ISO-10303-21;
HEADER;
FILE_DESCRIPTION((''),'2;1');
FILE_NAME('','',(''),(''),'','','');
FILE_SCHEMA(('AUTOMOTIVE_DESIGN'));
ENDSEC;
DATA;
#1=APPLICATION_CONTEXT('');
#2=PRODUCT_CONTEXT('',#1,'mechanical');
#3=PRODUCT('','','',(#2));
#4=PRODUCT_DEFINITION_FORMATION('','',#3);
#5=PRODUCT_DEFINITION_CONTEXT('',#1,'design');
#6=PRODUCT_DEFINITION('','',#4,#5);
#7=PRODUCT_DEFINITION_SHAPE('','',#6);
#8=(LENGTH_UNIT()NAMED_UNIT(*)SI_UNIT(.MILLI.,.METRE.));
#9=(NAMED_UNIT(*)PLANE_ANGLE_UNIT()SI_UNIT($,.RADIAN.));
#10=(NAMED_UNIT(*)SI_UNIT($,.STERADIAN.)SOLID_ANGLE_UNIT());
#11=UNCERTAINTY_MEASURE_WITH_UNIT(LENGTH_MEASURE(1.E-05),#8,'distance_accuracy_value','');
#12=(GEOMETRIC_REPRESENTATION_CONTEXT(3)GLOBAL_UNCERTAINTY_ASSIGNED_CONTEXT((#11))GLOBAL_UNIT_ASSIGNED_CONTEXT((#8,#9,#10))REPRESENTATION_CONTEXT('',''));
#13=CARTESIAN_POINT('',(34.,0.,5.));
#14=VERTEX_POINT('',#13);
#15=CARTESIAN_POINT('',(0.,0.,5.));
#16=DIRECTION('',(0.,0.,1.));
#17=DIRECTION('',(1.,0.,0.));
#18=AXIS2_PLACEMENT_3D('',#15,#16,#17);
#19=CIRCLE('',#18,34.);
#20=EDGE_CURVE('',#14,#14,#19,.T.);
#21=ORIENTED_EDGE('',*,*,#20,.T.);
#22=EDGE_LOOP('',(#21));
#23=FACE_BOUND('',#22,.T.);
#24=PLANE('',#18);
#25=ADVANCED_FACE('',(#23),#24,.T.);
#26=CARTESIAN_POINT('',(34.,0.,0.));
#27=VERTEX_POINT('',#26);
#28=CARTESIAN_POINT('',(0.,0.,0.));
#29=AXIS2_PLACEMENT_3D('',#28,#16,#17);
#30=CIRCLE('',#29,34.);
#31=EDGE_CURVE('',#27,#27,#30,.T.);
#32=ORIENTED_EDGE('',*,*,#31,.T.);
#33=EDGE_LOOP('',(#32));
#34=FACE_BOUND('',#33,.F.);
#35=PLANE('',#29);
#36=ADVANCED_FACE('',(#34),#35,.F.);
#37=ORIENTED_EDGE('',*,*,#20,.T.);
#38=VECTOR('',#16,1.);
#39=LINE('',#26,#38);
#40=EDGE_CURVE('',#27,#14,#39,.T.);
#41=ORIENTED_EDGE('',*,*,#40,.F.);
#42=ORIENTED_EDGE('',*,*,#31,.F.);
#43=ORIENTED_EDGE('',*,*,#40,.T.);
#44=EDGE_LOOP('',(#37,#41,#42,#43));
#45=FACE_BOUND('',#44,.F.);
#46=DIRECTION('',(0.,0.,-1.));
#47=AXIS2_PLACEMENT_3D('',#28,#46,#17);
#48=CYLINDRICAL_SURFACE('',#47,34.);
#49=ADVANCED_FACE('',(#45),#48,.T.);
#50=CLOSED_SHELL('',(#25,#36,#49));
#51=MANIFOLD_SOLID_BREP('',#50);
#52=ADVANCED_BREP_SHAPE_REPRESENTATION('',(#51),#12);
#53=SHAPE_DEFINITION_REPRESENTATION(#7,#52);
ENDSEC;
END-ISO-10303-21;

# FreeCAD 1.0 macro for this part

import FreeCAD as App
import Part
import Sketcher
Q = App.Units.Quantity

doc = App.newDocument("Part")
body = doc.addObject("PartDesign::Body", "Body")

# Sketch on XY plane
sketch1 = doc.addObject("Sketcher::SketchObject", "Sketch")
body.addObject(sketch1)
sketch1.AttachmentSupport = (doc.XY_Plane, [""])
sketch1.MapMode = "FlatFace"
sketch1.addGeometry(Part.Circle(App.Vector(0, 0, 0), App.Vector(0, 0, 1), 34), False)
sketch1.addConstraint([
    Sketcher.Constraint("Coincident", 0, 3, -1, 1),
    Sketcher.Constraint("Diameter", 0, Q("68 mm")),
])
pad1 = doc.addObject("PartDesign::Pad", "Pad")
body.addObject(pad1)
pad1.Profile = sketch1
pad1.Length = 5

doc.recompute()
